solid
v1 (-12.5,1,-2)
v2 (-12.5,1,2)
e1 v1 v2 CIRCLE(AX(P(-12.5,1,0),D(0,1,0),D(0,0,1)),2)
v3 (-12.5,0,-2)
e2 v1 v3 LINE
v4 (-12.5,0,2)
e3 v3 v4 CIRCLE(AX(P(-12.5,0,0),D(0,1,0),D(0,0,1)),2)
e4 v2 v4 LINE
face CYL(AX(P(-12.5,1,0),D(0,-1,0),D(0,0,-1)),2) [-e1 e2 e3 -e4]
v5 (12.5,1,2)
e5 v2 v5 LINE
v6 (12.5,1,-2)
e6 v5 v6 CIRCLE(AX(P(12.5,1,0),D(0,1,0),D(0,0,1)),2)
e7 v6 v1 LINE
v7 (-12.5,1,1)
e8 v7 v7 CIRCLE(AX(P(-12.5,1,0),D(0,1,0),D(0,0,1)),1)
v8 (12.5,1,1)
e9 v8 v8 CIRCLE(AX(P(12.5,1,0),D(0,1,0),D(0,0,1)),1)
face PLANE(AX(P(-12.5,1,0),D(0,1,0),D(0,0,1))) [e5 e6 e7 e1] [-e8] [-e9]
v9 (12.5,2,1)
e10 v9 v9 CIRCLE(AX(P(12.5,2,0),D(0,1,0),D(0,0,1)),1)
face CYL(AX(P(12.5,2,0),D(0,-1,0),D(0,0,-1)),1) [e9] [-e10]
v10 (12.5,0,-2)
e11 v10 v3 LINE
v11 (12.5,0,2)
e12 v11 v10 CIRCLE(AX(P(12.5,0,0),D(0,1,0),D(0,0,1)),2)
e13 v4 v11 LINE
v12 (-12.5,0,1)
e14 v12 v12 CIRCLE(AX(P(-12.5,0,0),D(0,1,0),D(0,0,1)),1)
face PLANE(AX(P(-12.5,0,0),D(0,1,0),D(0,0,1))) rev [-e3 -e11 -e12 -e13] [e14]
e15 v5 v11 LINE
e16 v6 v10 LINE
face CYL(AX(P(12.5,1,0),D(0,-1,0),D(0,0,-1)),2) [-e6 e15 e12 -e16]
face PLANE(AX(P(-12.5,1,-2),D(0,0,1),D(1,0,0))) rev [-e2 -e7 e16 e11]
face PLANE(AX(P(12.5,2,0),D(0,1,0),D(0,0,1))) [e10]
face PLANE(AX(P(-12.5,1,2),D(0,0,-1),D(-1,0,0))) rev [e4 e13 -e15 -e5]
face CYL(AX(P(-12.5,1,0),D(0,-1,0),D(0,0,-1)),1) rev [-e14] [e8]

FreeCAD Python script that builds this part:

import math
import FreeCAD as App
import Part
import Sketcher
Q = App.Units.Quantity

doc = App.newDocument("Part")
body = doc.addObject("PartDesign::Body", "Body")

# Sketch on XZ plane
sketch1 = doc.addObject("Sketcher::SketchObject", "Sketch")
body.addObject(sketch1)
sketch1.AttachmentSupport = (doc.XZ_Plane, [""])
sketch1.MapMode = "FlatFace"
sketch1.addGeometry([
    Part.LineSegment(App.Vector(12.5, -2, 0), App.Vector(-12.5, -2, 0)),  # 0
    Part.ArcOfCircle(Part.Circle(App.Vector(-12.5, 0, 0), App.Vector(0, 0, 1), 2), math.radians(90), math.radians(270)),  # 1
    Part.LineSegment(App.Vector(-12.5, 2, 0), App.Vector(12.5, 2, 0)),  # 2
    Part.ArcOfCircle(Part.Circle(App.Vector(12.5, 0, 0), App.Vector(0, 0, 1), 2), math.radians(-90), math.radians(90)),  # 3
    Part.Circle(App.Vector(12.5, 0, 0), App.Vector(0, 0, 1), 1),  # 4
    Part.Circle(App.Vector(-12.5, 0, 0), App.Vector(0, 0, 1), 1),  # 5
], False)
sketch1.addConstraint([
    Sketcher.Constraint("Tangent", 0, 2, 1, 2),
    Sketcher.Constraint("Tangent", 1, 1, 2, 1),
    Sketcher.Constraint("Tangent", 2, 2, 3, 2),
    Sketcher.Constraint("Tangent", 3, 1, 0, 1),
    Sketcher.Constraint("Horizontal", 0),
    Sketcher.Constraint("Horizontal", 2),
    Sketcher.Constraint("Coincident", 4, 3, 3, 3),
    Sketcher.Constraint("Coincident", 5, 3, 1, 3),
    Sketcher.Constraint("Equal", 4, 5),
    Sketcher.Constraint("Symmetric", 1, 3, 3, 3, -1, 1),
    Sketcher.Constraint("Diameter", 4, Q("2 mm")),
    Sketcher.Constraint("Radius", 1, Q("2 mm")),
    Sketcher.Constraint("DistanceX", 0, 2, 0, 1, Q("25 mm")),
])
pad1 = doc.addObject("PartDesign::Pad", "Pad")
body.addObject(pad1)
pad1.Profile = sketch1
pad1.Length = 1
pad1.Reversed = True

# Sketch on XZ plane
sketch2 = doc.addObject("Sketcher::SketchObject", "Sketch001")
body.addObject(sketch2)
sketch2.AttachmentSupport = (doc.XZ_Plane, [""])
sketch2.MapMode = "FlatFace"
sketch2.AttachmentOffset = App.Placement(App.Vector(0, 0, -1), App.Rotation())
sketch2.addGeometry(Part.Circle(App.Vector(12.5, 0, 0), App.Vector(0, 0, 1), 1), False)
sketch2.addConstraint([
    Sketcher.Constraint("PointOnObject", 0, 3, -1),
    Sketcher.Constraint("Diameter", 0, Q("2 mm")),
    Sketcher.Constraint("DistanceX", -1, 1, 0, 3, Q("12.5 mm")),
])
pad2 = doc.addObject("PartDesign::Pad", "Pad001")
body.addObject(pad2)
pad2.Profile = sketch2
pad2.Length = 2
pad2.Midplane = True

# Sketch on XZ plane
sketch3 = doc.addObject("Sketcher::SketchObject", "Sketch002")
body.addObject(sketch3)
sketch3.AttachmentSupport = (doc.XZ_Plane, [""])
sketch3.MapMode = "FlatFace"
sketch3.AttachmentOffset = App.Placement(App.Vector(0, 0, -1), App.Rotation())
sketch3.addGeometry(Part.Circle(App.Vector(12.5, 0, 0), App.Vector(0, 0, 1), 1), False)
sketch3.addConstraint([
    Sketcher.Constraint("PointOnObject", 0, 3, -1),
    Sketcher.Constraint("Diameter", 0, Q("2 mm")),
    Sketcher.Constraint("DistanceX", -1, 1, 0, 3, Q("12.5 mm")),
])
pad3 = doc.addObject("PartDesign::Pad", "Pad002")
body.addObject(pad3)
pad3.Profile = sketch3
pad3.Length = 1
pad3.Reversed = True

doc.recompute()
